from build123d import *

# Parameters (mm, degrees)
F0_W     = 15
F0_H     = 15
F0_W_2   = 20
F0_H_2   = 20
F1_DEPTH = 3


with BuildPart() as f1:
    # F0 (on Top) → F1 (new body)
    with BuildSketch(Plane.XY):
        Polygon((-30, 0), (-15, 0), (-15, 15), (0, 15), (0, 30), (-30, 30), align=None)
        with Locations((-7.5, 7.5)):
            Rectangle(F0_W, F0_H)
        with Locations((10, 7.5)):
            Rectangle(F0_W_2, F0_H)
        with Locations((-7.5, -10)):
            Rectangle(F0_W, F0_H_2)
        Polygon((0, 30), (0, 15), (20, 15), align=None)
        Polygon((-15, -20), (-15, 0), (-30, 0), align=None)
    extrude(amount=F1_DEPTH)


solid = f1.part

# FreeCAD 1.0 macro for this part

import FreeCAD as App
import Part
import Sketcher
from FreeCAD import Vector
Q = App.Units.Quantity

doc = App.newDocument("Part")
params = doc.addObject("Spreadsheet::Sheet", "Params")
for row, (alias, value) in enumerate([
    ("sketch1_width", "15 mm"),
    ("sketch1_width2", "20 mm"),
    ("sketch1_width3", "30 mm"),
    ("pad1_length", "3 mm"),
], start=1):
    params.set(f"A{row}", alias)
    params.set(f"B{row}", "=" + value)
    params.setAlias(f"B{row}", alias)

body = doc.addObject("PartDesign::Body", "Body")

# Sketch on XY plane
sketch1 = body.newObject("Sketcher::SketchObject", "Sketch")
sketch1.AttachmentSupport = (doc.getObject("XY_Plane"), [""])
sketch1.MapMode = "FlatFace"
sketch1.addGeometry([
    Part.LineSegment(Vector(-15, -20, 0), Vector(0, -20, 0)),  # 0
    Part.LineSegment(Vector(0, -20, 0), Vector(0, 0, 0)),  # 1
    Part.LineSegment(Vector(0, 0, 0), Vector(20, 0, 0)),  # 2
    Part.LineSegment(Vector(20, 0, 0), Vector(20, 15, 0)),  # 3
    Part.LineSegment(Vector(20, 15, 0), Vector(0, 30, 0)),  # 4
    Part.LineSegment(Vector(0, 30, 0), Vector(-30, 30, 0)),  # 5
    Part.LineSegment(Vector(-30, 30, 0), Vector(-30, 0, 0)),  # 6
    Part.LineSegment(Vector(-30, 0, 0), Vector(-15, -20, 0)),  # 7
], False)
sketch1.addConstraint([
    Sketcher.Constraint("Coincident", 0, 2, 1, 1),
    Sketcher.Constraint("Coincident", 1, 2, 2, 1),
    Sketcher.Constraint("Coincident", 2, 2, 3, 1),
    Sketcher.Constraint("Coincident", 3, 2, 4, 1),
    Sketcher.Constraint("Coincident", 4, 2, 5, 1),
    Sketcher.Constraint("Coincident", 5, 2, 6, 1),
    Sketcher.Constraint("Coincident", 6, 2, 7, 1),
    Sketcher.Constraint("Coincident", 7, 2, 0, 1),
    Sketcher.Constraint("Horizontal", 0),
    Sketcher.Constraint("Vertical", 1),
    Sketcher.Constraint("Horizontal", 2),
    Sketcher.Constraint("Vertical", 3),
    Sketcher.Constraint("Horizontal", 5),
    Sketcher.Constraint("Vertical", 6),
    Sketcher.Constraint("Coincident", 1, 2, -1, 1),
    Sketcher.Constraint("PointOnObject", 4, 2, -2),
    Sketcher.Constraint("PointOnObject", 6, 2, -1),
    Sketcher.Constraint("Equal", 2, 1),
    Sketcher.Constraint("Equal", 0, 3),
    Sketcher.Constraint("Equal", 5, 6),
    Sketcher.Constraint("DistanceX", 0, 1, 0, 2, Q("15 mm")),
    Sketcher.Constraint("DistanceX", 2, 1, 2, 2, Q("20 mm")),
    Sketcher.Constraint("DistanceX", 5, 2, 5, 1, Q("30 mm")),
])
sketch1.setExpression("Constraints[20]", "Params.sketch1_width")
sketch1.setExpression("Constraints[21]", "Params.sketch1_width2")
sketch1.setExpression("Constraints[22]", "Params.sketch1_width3")
pad1 = body.newObject("PartDesign::Pad", "Pad")
pad1.Profile = sketch1
pad1.setExpression("Length", "Params.pad1_length")

doc.recompute()
